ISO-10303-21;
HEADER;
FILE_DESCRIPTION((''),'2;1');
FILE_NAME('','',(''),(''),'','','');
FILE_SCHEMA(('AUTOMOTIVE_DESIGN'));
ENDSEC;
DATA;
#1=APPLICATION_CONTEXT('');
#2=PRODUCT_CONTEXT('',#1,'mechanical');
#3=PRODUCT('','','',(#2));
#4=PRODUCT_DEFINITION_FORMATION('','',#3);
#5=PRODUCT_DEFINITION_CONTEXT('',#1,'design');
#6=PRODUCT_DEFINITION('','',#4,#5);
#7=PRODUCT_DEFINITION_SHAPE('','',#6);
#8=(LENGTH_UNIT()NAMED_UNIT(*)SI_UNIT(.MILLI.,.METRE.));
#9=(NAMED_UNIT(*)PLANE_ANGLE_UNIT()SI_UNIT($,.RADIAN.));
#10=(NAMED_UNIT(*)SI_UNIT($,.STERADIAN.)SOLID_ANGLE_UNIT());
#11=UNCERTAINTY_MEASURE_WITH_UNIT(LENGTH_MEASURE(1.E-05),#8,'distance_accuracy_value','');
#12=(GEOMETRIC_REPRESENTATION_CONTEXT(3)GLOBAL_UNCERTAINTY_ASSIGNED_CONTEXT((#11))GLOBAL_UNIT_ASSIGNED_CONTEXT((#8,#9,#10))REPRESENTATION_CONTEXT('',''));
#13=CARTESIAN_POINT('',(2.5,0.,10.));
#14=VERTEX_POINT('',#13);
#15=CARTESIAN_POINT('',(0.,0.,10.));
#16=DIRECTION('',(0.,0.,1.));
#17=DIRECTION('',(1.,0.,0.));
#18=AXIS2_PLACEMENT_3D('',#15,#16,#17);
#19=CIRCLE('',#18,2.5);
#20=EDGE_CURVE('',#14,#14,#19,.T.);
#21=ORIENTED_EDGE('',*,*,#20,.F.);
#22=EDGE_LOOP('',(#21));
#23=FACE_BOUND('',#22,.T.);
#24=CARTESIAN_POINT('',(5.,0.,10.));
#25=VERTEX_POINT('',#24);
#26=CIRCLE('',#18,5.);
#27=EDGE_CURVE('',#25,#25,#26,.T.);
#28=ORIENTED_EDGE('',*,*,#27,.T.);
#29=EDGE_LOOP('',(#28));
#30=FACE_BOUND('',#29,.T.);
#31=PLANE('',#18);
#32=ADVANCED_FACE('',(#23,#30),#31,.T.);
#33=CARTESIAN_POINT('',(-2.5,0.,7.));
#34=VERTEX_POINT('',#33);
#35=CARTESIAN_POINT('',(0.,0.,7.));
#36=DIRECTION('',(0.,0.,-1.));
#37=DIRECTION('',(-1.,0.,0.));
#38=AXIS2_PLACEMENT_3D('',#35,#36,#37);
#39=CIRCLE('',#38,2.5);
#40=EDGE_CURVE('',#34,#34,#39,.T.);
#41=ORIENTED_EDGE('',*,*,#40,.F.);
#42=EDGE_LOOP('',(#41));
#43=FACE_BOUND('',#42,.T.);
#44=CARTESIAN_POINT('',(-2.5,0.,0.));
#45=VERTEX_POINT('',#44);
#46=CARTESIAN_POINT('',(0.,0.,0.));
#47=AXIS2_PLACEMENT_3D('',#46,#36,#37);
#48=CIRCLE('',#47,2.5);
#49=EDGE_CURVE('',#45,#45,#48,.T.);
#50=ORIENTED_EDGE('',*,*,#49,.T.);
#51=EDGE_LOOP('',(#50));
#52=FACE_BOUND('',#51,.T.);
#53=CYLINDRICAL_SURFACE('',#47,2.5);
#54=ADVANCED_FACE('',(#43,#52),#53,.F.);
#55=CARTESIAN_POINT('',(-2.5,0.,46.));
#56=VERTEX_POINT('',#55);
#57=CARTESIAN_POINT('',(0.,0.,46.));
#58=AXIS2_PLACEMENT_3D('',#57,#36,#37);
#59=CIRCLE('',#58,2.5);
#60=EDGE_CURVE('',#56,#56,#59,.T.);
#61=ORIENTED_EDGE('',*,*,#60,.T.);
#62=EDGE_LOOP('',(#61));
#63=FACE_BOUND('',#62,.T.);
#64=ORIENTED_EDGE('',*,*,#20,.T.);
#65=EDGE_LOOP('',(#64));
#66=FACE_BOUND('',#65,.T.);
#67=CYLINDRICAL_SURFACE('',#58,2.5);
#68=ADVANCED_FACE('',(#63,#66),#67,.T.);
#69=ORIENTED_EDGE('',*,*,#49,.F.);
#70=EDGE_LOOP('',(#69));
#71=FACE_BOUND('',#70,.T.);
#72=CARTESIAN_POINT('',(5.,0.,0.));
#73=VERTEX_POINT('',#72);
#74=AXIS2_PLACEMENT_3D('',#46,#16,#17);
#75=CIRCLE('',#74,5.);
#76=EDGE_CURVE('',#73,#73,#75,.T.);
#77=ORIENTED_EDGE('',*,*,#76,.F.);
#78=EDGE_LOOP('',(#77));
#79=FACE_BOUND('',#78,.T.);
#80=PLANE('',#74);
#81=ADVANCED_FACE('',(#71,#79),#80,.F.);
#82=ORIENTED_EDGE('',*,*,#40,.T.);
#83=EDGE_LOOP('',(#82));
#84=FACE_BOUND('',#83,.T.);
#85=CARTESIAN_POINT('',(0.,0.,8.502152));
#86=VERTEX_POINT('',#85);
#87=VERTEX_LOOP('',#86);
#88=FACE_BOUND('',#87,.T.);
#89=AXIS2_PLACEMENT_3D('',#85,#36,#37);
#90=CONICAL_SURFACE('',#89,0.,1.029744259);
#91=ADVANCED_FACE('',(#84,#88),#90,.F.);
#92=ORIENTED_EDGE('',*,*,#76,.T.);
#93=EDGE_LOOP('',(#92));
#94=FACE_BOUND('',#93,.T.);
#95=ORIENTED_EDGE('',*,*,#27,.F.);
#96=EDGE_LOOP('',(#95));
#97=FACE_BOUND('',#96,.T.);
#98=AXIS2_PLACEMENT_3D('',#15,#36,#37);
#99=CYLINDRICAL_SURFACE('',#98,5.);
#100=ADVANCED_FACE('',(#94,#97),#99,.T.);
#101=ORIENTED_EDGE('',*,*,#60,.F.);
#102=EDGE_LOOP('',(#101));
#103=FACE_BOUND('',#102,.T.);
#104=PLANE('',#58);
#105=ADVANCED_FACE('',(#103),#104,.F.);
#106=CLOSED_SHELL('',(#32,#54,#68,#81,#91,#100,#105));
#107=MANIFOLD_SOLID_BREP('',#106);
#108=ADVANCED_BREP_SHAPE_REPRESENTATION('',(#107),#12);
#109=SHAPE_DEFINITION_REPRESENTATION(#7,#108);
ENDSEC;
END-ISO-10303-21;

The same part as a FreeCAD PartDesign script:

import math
import FreeCAD as App
import Part
import Sketcher
from FreeCAD import Vector

doc = App.newDocument("Part")
body = doc.addObject("PartDesign::Body", "Body")

# Sketch on XY plane
sketch1 = doc.addObject("Sketcher::SketchObject", "Sketch")
body.addObject(sketch1)
sketch1.AttachmentSupport = (doc.XY_Plane, [""])
sketch1.MapMode = "FlatFace"
sketch1.addGeometry(Part.Circle(Vector(0, 0, 0), Vector(0, 0, 1), 5), False)
sketch1.addConstraint([
    Sketcher.Constraint("Coincident", 0, 3, -1, 1),
    Sketcher.Constraint("Diameter", 0, 10.0),
])
pad1 = doc.addObject("PartDesign::Pad", "Pad")
body.addObject(pad1)
pad1.Profile = sketch1
pad1.Length = 10

# Sketch on XY plane
sketch2 = doc.addObject("Sketcher::SketchObject", "Sketch001")
body.addObject(sketch2)
sketch2.AttachmentSupport = (doc.XY_Plane, [""])
sketch2.MapMode = "FlatFace"
sketch2.addGeometry(Part.Circle(Vector(0, 0, 0), Vector(0, 0, 1), 2.5), False)
sketch2.addConstraint([
    Sketcher.Constraint("Coincident", 0, 3, -1, 1),
    Sketcher.Constraint("Diameter", 0, 5.0),
])
pad2 = doc.addObject("PartDesign::Pad", "Pad001")
body.addObject(pad2)
pad2.Profile = sketch2
pad2.Length = 46

# Sketch on XY plane
sketch3 = doc.addObject("Sketcher::SketchObject", "Sketch002")
body.addObject(sketch3)
sketch3.AttachmentSupport = (doc.XY_Plane, [""])
sketch3.MapMode = "FlatFace"
sketch3.addGeometry(Part.Circle(Vector(0, 0, 0), Vector(0, 0, 1), 2.5), False)
sketch3.addConstraint([
    Sketcher.Constraint("Coincident", 0, 3, -1, 1),
    Sketcher.Constraint("Diameter", 0, 5.0),
])
doc.recompute()
hole = doc.addObject("PartDesign::Hole", "Hole")
body.addObject(hole)
hole.Profile = sketch3
hole.ThreadType = "None"
hole.Diameter = 5
hole.DepthType = "Dimension"
hole.Depth = 7
hole.DrillPoint = "Angled"
hole.DrillPointAngle = 118
hole.Reversed = True

# Sketch on XY plane
sketch4 = doc.addObject("Sketcher::SketchObject", "Sketch003")
body.addObject(sketch4)
sketch4.AttachmentSupport = (doc.XY_Plane, [""])
sketch4.MapMode = "FlatFace"
sketch4.addGeometry([
    Part.LineSegment(Vector(-6.117596, 2.466701, 0), Vector(-4.349183, 2.466701, 0)),
    Part.ArcOfCircle(Part.Circle(Vector(0, 0, 0), Vector(0, 0, 1), 5), math.radians(150.439646), math.radians(206.443118)),
    Part.LineSegment(Vector(-4.476884, -2.226546, 0), Vector(-6.117596, -2.226546, 0)),
    Part.LineSegment(Vector(-6.117596, -2.226546, 0), Vector(-6.117596, 2.466701, 0)),
], False)
sketch4.addConstraint([
    Sketcher.Constraint("Coincident", 0, 2, 1, 1),
    Sketcher.Constraint("Coincident", 1, 2, 2, 1),
    Sketcher.Constraint("Coincident", 2, 2, 3, 1),
    Sketcher.Constraint("Coincident", 3, 2, 0, 1),
    Sketcher.Constraint("Horizontal", 0),
    Sketcher.Constraint("Horizontal", 2),
    Sketcher.Constraint("Vertical", 3),
    Sketcher.Constraint("Coincident", 1, 3, -1, 1),
    Sketcher.Constraint("Radius", 1, 5.0),
    Sketcher.Constraint("DistanceX", 2, 2, 2, 1, 1.640712),
    Sketcher.Constraint("DistanceY", -1, 1, 0, 2, 2.466701),
    Sketcher.Constraint("DistanceX", 1, 2, 0, 2, 0.127702),
])
pad3 = doc.addObject("PartDesign::Pad", "Pad002")
body.addObject(pad3)
pad3.Profile = sketch4
pad3.Length = 5

# Sketch on XY plane
sketch5 = doc.addObject("Sketcher::SketchObject", "Sketch004")
body.addObject(sketch5)
sketch5.AttachmentSupport = (doc.XY_Plane, [""])
sketch5.MapMode = "FlatFace"
sketch5.addGeometry([
    Part.LineSegment(Vector(-6.634266, 2.834439, 0), Vector(-4.118975, 2.834439, 0)),
    Part.ArcOfCircle(Part.Circle(Vector(0, 0, 0), Vector(0, 0, 1), 5), math.radians(145.46652), math.radians(213.107383)),
    Part.LineSegment(Vector(-4.188242, -2.731049, 0), Vector(-6.634266, -2.731049, 0)),
    Part.LineSegment(Vector(-6.634266, -2.731049, 0), Vector(-6.634266, 2.834439, 0)),
], False)
sketch5.addConstraint([
    Sketcher.Constraint("Coincident", 0, 2, 1, 1),
    Sketcher.Constraint("Coincident", 1, 2, 2, 1),
    Sketcher.Constraint("Coincident", 2, 2, 3, 1),
    Sketcher.Constraint("Coincident", 3, 2, 0, 1),
    Sketcher.Constraint("Horizontal", 0),
    Sketcher.Constraint("Horizontal", 2),
    Sketcher.Constraint("Vertical", 3),
    Sketcher.Constraint("Coincident", 1, 3, -1, 1),
    Sketcher.Constraint("Radius", 1, 5.0),
    Sketcher.Constraint("DistanceX", 0, 1, 0, 2, 2.51529),
    Sketcher.Constraint("DistanceX", 2, 2, 2, 1, 2.446024),
    Sketcher.Constraint("DistanceY", 3, 1, 3, 2, 5.565488),
])
pocket1 = doc.addObject("PartDesign::Pocket", "Pocket")
body.addObject(pocket1)
pocket1.Profile = sketch5
pocket1.Type = "ThroughAll"
pocket1.Reversed = True

doc.recompute()
